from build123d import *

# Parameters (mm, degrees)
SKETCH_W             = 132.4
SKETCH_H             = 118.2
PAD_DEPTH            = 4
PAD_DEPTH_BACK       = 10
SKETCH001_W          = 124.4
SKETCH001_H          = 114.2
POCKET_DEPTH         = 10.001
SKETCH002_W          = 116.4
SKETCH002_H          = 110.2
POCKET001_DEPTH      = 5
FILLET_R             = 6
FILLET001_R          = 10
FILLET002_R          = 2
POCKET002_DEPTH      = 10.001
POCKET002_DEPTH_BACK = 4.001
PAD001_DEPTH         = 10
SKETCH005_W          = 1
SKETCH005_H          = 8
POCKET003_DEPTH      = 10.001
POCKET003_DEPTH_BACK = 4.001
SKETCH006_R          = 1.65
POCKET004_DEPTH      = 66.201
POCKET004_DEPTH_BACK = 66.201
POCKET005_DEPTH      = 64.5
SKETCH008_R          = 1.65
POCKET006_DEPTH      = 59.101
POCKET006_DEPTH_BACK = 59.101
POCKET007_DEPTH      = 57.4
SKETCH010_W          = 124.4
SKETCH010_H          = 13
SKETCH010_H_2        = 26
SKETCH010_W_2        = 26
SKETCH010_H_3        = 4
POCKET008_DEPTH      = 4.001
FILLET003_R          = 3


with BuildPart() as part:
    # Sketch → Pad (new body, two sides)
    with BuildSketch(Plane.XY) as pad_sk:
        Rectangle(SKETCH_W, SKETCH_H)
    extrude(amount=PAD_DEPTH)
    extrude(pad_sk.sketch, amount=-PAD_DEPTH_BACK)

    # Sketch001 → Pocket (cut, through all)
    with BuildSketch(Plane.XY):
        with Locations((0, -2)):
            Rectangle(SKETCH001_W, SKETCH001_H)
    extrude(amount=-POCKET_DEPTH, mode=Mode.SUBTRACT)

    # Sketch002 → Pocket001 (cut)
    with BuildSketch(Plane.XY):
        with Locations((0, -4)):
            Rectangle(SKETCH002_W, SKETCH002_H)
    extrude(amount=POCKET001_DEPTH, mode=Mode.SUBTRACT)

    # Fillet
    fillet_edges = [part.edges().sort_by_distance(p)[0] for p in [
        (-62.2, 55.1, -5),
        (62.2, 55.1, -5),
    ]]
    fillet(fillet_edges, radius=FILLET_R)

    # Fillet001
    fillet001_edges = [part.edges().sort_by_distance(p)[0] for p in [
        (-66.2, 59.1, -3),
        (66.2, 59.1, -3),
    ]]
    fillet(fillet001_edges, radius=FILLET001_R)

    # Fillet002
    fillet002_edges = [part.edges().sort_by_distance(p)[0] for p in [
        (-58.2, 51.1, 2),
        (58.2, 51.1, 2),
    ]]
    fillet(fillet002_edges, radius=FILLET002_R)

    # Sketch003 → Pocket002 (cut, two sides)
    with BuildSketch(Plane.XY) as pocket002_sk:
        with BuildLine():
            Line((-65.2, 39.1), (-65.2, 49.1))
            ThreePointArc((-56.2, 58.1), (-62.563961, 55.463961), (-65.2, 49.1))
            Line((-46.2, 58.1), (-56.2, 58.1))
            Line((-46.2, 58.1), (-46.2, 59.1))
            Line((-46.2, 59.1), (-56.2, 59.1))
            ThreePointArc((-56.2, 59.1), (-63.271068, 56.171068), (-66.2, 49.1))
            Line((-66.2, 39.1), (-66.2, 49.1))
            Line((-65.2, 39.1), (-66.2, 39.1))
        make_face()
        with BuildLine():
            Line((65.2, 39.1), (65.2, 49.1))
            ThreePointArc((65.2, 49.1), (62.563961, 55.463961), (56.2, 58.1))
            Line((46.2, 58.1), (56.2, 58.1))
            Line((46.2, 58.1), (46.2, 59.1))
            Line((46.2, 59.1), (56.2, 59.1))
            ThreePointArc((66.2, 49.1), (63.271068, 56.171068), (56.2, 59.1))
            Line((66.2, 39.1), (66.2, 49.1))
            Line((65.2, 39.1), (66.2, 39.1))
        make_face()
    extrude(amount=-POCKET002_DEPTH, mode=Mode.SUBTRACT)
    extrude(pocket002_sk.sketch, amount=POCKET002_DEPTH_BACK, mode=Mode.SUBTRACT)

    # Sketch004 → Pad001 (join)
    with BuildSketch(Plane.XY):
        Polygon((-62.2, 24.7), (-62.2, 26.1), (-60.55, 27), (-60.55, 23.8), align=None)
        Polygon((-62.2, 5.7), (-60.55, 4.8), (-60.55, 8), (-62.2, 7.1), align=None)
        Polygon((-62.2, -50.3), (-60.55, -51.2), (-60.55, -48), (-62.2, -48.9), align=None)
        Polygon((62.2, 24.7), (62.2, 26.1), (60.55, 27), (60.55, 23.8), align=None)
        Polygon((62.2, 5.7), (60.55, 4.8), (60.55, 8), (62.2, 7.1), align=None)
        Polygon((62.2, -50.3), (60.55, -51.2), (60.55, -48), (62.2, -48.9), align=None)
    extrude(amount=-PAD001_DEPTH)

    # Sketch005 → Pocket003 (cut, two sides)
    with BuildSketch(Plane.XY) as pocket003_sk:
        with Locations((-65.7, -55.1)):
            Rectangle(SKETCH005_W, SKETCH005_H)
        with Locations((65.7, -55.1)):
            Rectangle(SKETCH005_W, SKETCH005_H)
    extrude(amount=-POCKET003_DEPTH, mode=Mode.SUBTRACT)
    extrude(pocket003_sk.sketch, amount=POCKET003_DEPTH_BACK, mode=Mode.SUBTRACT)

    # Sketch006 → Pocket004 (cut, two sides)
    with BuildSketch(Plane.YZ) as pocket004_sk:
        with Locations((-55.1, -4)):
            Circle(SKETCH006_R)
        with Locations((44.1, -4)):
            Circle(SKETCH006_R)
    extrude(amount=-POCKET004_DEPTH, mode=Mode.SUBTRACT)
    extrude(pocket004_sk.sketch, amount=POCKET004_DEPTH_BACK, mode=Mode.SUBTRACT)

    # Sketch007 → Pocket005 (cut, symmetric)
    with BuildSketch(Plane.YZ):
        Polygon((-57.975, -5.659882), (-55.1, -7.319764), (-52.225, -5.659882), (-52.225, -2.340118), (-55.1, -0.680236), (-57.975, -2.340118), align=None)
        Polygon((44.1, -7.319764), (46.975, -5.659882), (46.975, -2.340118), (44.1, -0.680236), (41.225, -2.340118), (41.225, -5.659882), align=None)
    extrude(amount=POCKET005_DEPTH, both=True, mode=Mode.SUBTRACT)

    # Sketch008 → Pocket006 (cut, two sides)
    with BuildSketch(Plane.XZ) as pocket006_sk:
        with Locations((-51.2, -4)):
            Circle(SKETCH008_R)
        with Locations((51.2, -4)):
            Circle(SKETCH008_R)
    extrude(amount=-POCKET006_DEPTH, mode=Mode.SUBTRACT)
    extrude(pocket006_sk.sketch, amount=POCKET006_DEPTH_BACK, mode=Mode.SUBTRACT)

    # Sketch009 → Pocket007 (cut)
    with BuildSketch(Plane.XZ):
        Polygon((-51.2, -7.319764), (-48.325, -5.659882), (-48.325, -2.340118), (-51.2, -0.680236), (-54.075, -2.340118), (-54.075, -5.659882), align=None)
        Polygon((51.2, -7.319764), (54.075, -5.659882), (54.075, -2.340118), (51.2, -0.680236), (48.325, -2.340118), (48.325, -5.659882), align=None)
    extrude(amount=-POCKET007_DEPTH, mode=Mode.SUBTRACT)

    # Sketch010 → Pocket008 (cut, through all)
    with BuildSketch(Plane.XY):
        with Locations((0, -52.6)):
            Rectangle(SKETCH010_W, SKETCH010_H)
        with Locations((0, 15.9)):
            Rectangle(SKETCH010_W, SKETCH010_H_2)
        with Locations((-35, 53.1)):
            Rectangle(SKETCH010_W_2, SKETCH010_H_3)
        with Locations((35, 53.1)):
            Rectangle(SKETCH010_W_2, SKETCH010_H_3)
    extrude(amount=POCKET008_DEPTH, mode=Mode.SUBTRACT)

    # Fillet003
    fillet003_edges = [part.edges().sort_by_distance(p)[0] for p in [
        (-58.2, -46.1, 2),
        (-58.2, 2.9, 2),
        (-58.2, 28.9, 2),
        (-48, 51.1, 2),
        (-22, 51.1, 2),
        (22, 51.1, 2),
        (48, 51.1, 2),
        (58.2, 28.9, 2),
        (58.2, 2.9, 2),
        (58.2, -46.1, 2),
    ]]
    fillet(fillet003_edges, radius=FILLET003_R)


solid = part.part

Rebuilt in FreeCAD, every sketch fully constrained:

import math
import FreeCAD as App
import Part
import Sketcher

V = App.Vector
Q = App.Units.Quantity


def edges_at(feature, points):
    """Names of the edges that pass closest to the given points."""
    edges = feature.Shape.Edges
    near = lambda p: min(range(len(edges)), key=lambda i: edges[i].distToShape(Part.Vertex(*p))[0])
    return sorted({f"Edge{near(p) + 1}" for p in points})

doc = App.newDocument("Part")
body = doc.addObject("PartDesign::Body", "Body")

# Sketch on XY plane
sketch1 = body.newObject("Sketcher::SketchObject", "Sketch")
sketch1.AttachmentSupport = (doc.getObject("XY_Plane"), [""])
sketch1.MapMode = "FlatFace"
sketch1.addGeometry(Part.LineSegment(V(-66, 59, 0), V(-66, -59, 0)), False)
sketch1.addGeometry(Part.LineSegment(V(-66, -59, 0), V(66, -59, 0)), False)
sketch1.addGeometry(Part.LineSegment(V(66, -59, 0), V(66, 59, 0)), False)
sketch1.addGeometry(Part.LineSegment(V(66, 59, 0), V(-66, 59, 0)), False)
sketch1.addConstraint(Sketcher.Constraint("Coincident", 0, 2, 1, 1))
sketch1.addConstraint(Sketcher.Constraint("Coincident", 1, 2, 2, 1))
sketch1.addConstraint(Sketcher.Constraint("Coincident", 2, 2, 3, 1))
sketch1.addConstraint(Sketcher.Constraint("Coincident", 3, 2, 0, 1))
sketch1.addConstraint(Sketcher.Constraint("Vertical", 0))
sketch1.addConstraint(Sketcher.Constraint("Horizontal", 1))
sketch1.addConstraint(Sketcher.Constraint("Vertical", 2))
sketch1.addConstraint(Sketcher.Constraint("Horizontal", 3))
sketch1.addConstraint(Sketcher.Constraint("Symmetric", 0, 2, 2, 2, -1, 1))
sketch1.addConstraint(Sketcher.Constraint("DistanceX", 1, 1, 1, 2, 132.4))
sketch1.addConstraint(Sketcher.Constraint("DistanceY", 0, 2, 0, 1, 118.2))
pad1 = body.newObject("PartDesign::Pad", "Pad")
pad1.Profile = sketch1
pad1.Type = "TwoLengths"
pad1.Length = 4
pad1.Length2 = 10

# Sketch on XY plane
sketch2 = body.newObject("Sketcher::SketchObject", "Sketch001")
sketch2.AttachmentSupport = (doc.getObject("XY_Plane"), [""])
sketch2.MapMode = "FlatFace"
sketch2.addGeometry(Part.LineSegment(V(-62, 55, 0), V(-62, -59, 0)), False)
sketch2.addGeometry(Part.LineSegment(V(-62, -59, 0), V(62, -59, 0)), False)
sketch2.addGeometry(Part.LineSegment(V(62, -59, 0), V(62, 55, 0)), False)
sketch2.addGeometry(Part.LineSegment(V(62, 55, 0), V(-62, 55, 0)), False)
sketch2.addConstraint(Sketcher.Constraint("Coincident", 0, 2, 1, 1))
sketch2.addConstraint(Sketcher.Constraint("Coincident", 1, 2, 2, 1))
sketch2.addConstraint(Sketcher.Constraint("Coincident", 2, 2, 3, 1))
sketch2.addConstraint(Sketcher.Constraint("Coincident", 3, 2, 0, 1))
sketch2.addConstraint(Sketcher.Constraint("Vertical", 0))
sketch2.addConstraint(Sketcher.Constraint("Horizontal", 1))
sketch2.addConstraint(Sketcher.Constraint("Vertical", 2))
sketch2.addConstraint(Sketcher.Constraint("Horizontal", 3))
sketch2.addConstraint(Sketcher.Constraint("DistanceX", 1, 1, 1, 2, 124.4))
sketch2.addConstraint(Sketcher.Constraint("DistanceY", 0, 2, 0, 1, 114.2))
sketch2.addConstraint(Sketcher.Constraint("DistanceX", 0, 2, -1, 1, 62.2))
sketch2.addConstraint(Sketcher.Constraint("DistanceY", 0, 2, -1, 1, 59.1))
pocket1 = body.newObject("PartDesign::Pocket", "Pocket")
pocket1.Profile = sketch2
pocket1.Type = "ThroughAll"

# Sketch on XY plane
sketch3 = body.newObject("Sketcher::SketchObject", "Sketch002")
sketch3.AttachmentSupport = (doc.getObject("XY_Plane"), [""])
sketch3.MapMode = "FlatFace"
sketch3.addGeometry(Part.LineSegment(V(-58, 51, 0), V(-58, -59, 0)), False)
sketch3.addGeometry(Part.LineSegment(V(-58, -59, 0), V(58, -59, 0)), False)
sketch3.addGeometry(Part.LineSegment(V(58, -59, 0), V(58, 51, 0)), False)
sketch3.addGeometry(Part.LineSegment(V(58, 51, 0), V(-58, 51, 0)), False)
sketch3.addConstraint(Sketcher.Constraint("Coincident", 0, 2, 1, 1))
sketch3.addConstraint(Sketcher.Constraint("Coincident", 1, 2, 2, 1))
sketch3.addConstraint(Sketcher.Constraint("Coincident", 2, 2, 3, 1))
sketch3.addConstraint(Sketcher.Constraint("Coincident", 3, 2, 0, 1))
sketch3.addConstraint(Sketcher.Constraint("Vertical", 0))
sketch3.addConstraint(Sketcher.Constraint("Horizontal", 1))
sketch3.addConstraint(Sketcher.Constraint("Vertical", 2))
sketch3.addConstraint(Sketcher.Constraint("Horizontal", 3))
sketch3.addConstraint(Sketcher.Constraint("DistanceX", 1, 1, 1, 2, 116.4))
sketch3.addConstraint(Sketcher.Constraint("DistanceY", 0, 2, 0, 1, 110.2))
sketch3.addConstraint(Sketcher.Constraint("DistanceX", 0, 2, -1, 1, 58.2))
sketch3.addConstraint(Sketcher.Constraint("DistanceY", 0, 2, -1, 1, 59.1))
pocket2 = body.newObject("PartDesign::Pocket", "Pocket001")
pocket2.Profile = sketch3
pocket2.Length = 5
pocket2.Reversed = True
doc.recompute()

fillet = body.newObject("PartDesign::Fillet", "Fillet")
fillet.Base = (pocket2, edges_at(pocket2, [(-62.2, 55.1, -5), (62.2, 55.1, -5)]))
fillet.Radius = 6
doc.recompute()

fillet2 = body.newObject("PartDesign::Fillet", "Fillet001")
fillet2.Base = (fillet, edges_at(fillet, [(-66.2, 59.1, -3), (66.2, 59.1, -3)]))
fillet2.Radius = 10
doc.recompute()

fillet3 = body.newObject("PartDesign::Fillet", "Fillet002")
fillet3.Base = (fillet2, edges_at(fillet2, [(-58.2, 51.1, 2), (58.2, 51.1, 2)]))
fillet3.Radius = 2

# Sketch on XY plane
sketch4 = body.newObject("Sketcher::SketchObject", "Sketch003")
sketch4.AttachmentSupport = (doc.getObject("XY_Plane"), [""])
sketch4.MapMode = "FlatFace"
sketch4.addGeometry(Part.LineSegment(V(-65.2, 39.1, 0), V(-65.2, 49.1, 0)), False)
sketch4.addGeometry(Part.ArcOfCircle(Part.Circle(V(-56.2, 49.1, 0), V(0, 0, 1), 9), math.radians(90), math.radians(180)), False)
sketch4.addGeometry(Part.LineSegment(V(-56.2, 58.1, 0), V(-46.2, 58.1, 0)), False)
sketch4.addGeometry(Part.LineSegment(V(-46.2, 58.1, 0), V(-46.2, 59.1, 0)), False)
sketch4.addGeometry(Part.LineSegment(V(-46.2, 59.1, 0), V(-56.2, 59.1, 0)), False)
sketch4.addGeometry(Part.ArcOfCircle(Part.Circle(V(-56.2, 49.1, 0), V(0, 0, 1), 10), math.radians(90), math.radians(180)), False)
sketch4.addGeometry(Part.LineSegment(V(-66.2, 49.1, 0), V(-66.2, 39.1, 0)), False)
sketch4.addGeometry(Part.LineSegment(V(-66.2, 39.1, 0), V(-65.2, 39.1, 0)), False)
sketch4.addGeometry(Part.LineSegment(V(65.2, 49.1, 0), V(65.2, 39.1, 0)), False)
sketch4.addGeometry(Part.LineSegment(V(65.2, 39.1, 0), V(66.2, 39.1, 0)), False)
sketch4.addGeometry(Part.LineSegment(V(66.2, 39.1, 0), V(66.2, 49.1, 0)), False)
sketch4.addGeometry(Part.ArcOfCircle(Part.Circle(V(56.2, 49.1, 0), V(0, 0, 1), 10), math.radians(0), math.radians(90)), False)
sketch4.addGeometry(Part.LineSegment(V(56.2, 59.1, 0), V(46.2, 59.1, 0)), False)
sketch4.addGeometry(Part.LineSegment(V(46.2, 59.1, 0), V(46.2, 58.1, 0)), False)
sketch4.addGeometry(Part.LineSegment(V(46.2, 58.1, 0), V(56.2, 58.1, 0)), False)
sketch4.addGeometry(Part.ArcOfCircle(Part.Circle(V(56.2, 49.1, 0), V(0, 0, 1), 9), math.radians(0), math.radians(90)), False)
sketch4.addConstraint(Sketcher.Constraint("Tangent", 0, 2, 1, 2))
sketch4.addConstraint(Sketcher.Constraint("Tangent", 1, 1, 2, 1))
sketch4.addConstraint(Sketcher.Constraint("Coincident", 2, 2, 3, 1))
sketch4.addConstraint(Sketcher.Constraint("Coincident", 3, 2, 4, 1))
sketch4.addConstraint(Sketcher.Constraint("Tangent", 4, 2, 5, 1))
sketch4.addConstraint(Sketcher.Constraint("Tangent", 5, 2, 6, 1))
sketch4.addConstraint(Sketcher.Constraint("Coincident", 6, 2, 7, 1))
sketch4.addConstraint(Sketcher.Constraint("Coincident", 7, 2, 0, 1))
sketch4.addConstraint(Sketcher.Constraint("Coincident", 8, 2, 9, 1))
sketch4.addConstraint(Sketcher.Constraint("Coincident", 9, 2, 10, 1))
sketch4.addConstraint(Sketcher.Constraint("Tangent", 10, 2, 11, 1))
sketch4.addConstraint(Sketcher.Constraint("Tangent", 11, 2, 12, 1))
sketch4.addConstraint(Sketcher.Constraint("Coincident", 12, 2, 13, 1))
sketch4.addConstraint(Sketcher.Constraint("Coincident", 13, 2, 14, 1))
sketch4.addConstraint(Sketcher.Constraint("Tangent", 14, 2, 15, 2))
sketch4.addConstraint(Sketcher.Constraint("Tangent", 15, 1, 8, 1))
sketch4.addConstraint(Sketcher.Constraint("Vertical", 0))
sketch4.addConstraint(Sketcher.Constraint("Horizontal", 2))
sketch4.addConstraint(Sketcher.Constraint("Vertical", 3))
sketch4.addConstraint(Sketcher.Constraint("Horizontal", 4))
sketch4.addConstraint(Sketcher.Constraint("Vertical", 6))
sketch4.addConstraint(Sketcher.Constraint("Horizontal", 7))
sketch4.addConstraint(Sketcher.Constraint("Vertical", 8))
sketch4.addConstraint(Sketcher.Constraint("Horizontal", 9))
sketch4.addConstraint(Sketcher.Constraint("Vertical", 10))
sketch4.addConstraint(Sketcher.Constraint("Horizontal", 12))
sketch4.addConstraint(Sketcher.Constraint("Vertical", 13))
sketch4.addConstraint(Sketcher.Constraint("Horizontal", 14))
sketch4.addConstraint(Sketcher.Constraint("Coincident", 5, 3, 1, 3))
sketch4.addConstraint(Sketcher.Constraint("Coincident", 15, 3, 11, 3))
sketch4.addConstraint(Sketcher.Constraint("Equal", 5, 11))
sketch4.addConstraint(Sketcher.Constraint("Equal", 1, 15))
sketch4.addConstraint(Sketcher.Constraint("Symmetric", 1, 3, 11, 3, -2))
sketch4.addConstraint(Sketcher.Constraint("Horizontal", 7, 2, 8, 2))
sketch4.addConstraint(Sketcher.Constraint("Equal", 4, 12))
sketch4.addConstraint(Sketcher.Constraint("Equal", 14, 0))
sketch4.addConstraint(Sketcher.Constraint("Radius", 1, 9.0))
sketch4.addConstraint(Sketcher.Constraint("Radius", 5, 9.999999))
sketch4.addConstraint(Sketcher.Constraint("DistanceX", 2, 1, 2, 2, 10.0))
sketch4.addConstraint(Sketcher.Constraint("DistanceX", 1, 3, -1, 1, 56.2))
sketch4.addConstraint(Sketcher.Constraint("DistanceY", -1, 1, 1, 3, 49.1))
pocket3 = body.newObject("PartDesign::Pocket", "Pocket002")
pocket3.Profile = sketch4
pocket3.Type = "ThroughAll"
pocket3.Midplane = True

# Sketch on XY plane
sketch5 = body.newObject("Sketcher::SketchObject", "Sketch004")
sketch5.AttachmentSupport = (doc.getObject("XY_Plane"), [""])
sketch5.MapMode = "FlatFace"
sketch5.addGeometry(Part.LineSegment(V(-62.2, 26.1, 0), V(-62.2, 24.7, 0)), False)
sketch5.addGeometry(Part.LineSegment(V(-62.2, 24.7, 0), V(-60.5, 23.8, 0)), False)
sketch5.addGeometry(Part.LineSegment(V(-60.5, 23.8, 0), V(-60.5, 27, 0)), False)
sketch5.addGeometry(Part.LineSegment(V(-60.5, 27, 0), V(-62.2, 26.1, 0)), False)
sketch5.addGeometry(Part.LineSegment(V(-62.2, 5.7, 0), V(-60.5, 4.8, 0)), False)
sketch5.addGeometry(Part.LineSegment(V(-60.5, 4.8, 0), V(-60.5, 8, 0)), False)
sketch5.addGeometry(Part.LineSegment(V(-60.5, 8, 0), V(-62.2, 7.1, 0)), False)
sketch5.addGeometry(Part.LineSegment(V(-62.2, 7.1, 0), V(-62.2, 5.7, 0)), False)
sketch5.addGeometry(Part.LineSegment(V(-62.2, -50.3, 0), V(-60.5, -51.2, 0)), False)
sketch5.addGeometry(Part.LineSegment(V(-60.5, -51.2, 0), V(-60.5, -48, 0)), False)
sketch5.addGeometry(Part.LineSegment(V(-60.5, -48, 0), V(-62.2, -48.9, 0)), False)
sketch5.addGeometry(Part.LineSegment(V(-62.2, -48.9, 0), V(-62.2, -50.3, 0)), False)
sketch5.addGeometry(Part.LineSegment(V(62.2, 24.7, 0), V(62.2, 26.1, 0)), False)
sketch5.addGeometry(Part.LineSegment(V(62.2, 26.1, 0), V(60.5, 27, 0)), False)
sketch5.addGeometry(Part.LineSegment(V(60.5, 27, 0), V(60.5, 23.8, 0)), False)
sketch5.addGeometry(Part.LineSegment(V(60.5, 23.8, 0), V(62.2, 24.7, 0)), False)
sketch5.addGeometry(Part.LineSegment(V(60.5, 4.8, 0), V(62.2, 5.7, 0)), False)
sketch5.addGeometry(Part.LineSegment(V(62.2, 5.7, 0), V(62.2, 7.1, 0)), False)
sketch5.addGeometry(Part.LineSegment(V(62.2, 7.1, 0), V(60.5, 8, 0)), False)
sketch5.addGeometry(Part.LineSegment(V(60.5, 8, 0), V(60.5, 4.8, 0)), False)
sketch5.addGeometry(Part.LineSegment(V(60.5, -51.2, 0), V(62.2, -50.3, 0)), False)
sketch5.addGeometry(Part.LineSegment(V(62.2, -50.3, 0), V(62.2, -48.9, 0)), False)
sketch5.addGeometry(Part.LineSegment(V(62.2, -48.9, 0), V(60.5, -48, 0)), False)
sketch5.addGeometry(Part.LineSegment(V(60.5, -48, 0), V(60.5, -51.2, 0)), False)
sketch5.addConstraint(Sketcher.Constraint("Coincident", 0, 2, 1, 1))
sketch5.addConstraint(Sketcher.Constraint("Coincident", 1, 2, 2, 1))
sketch5.addConstraint(Sketcher.Constraint("Coincident", 2, 2, 3, 1))
sketch5.addConstraint(Sketcher.Constraint("Coincident", 3, 2, 0, 1))
sketch5.addConstraint(Sketcher.Constraint("Coincident", 4, 2, 5, 1))
sketch5.addConstraint(Sketcher.Constraint("Coincident", 5, 2, 6, 1))
sketch5.addConstraint(Sketcher.Constraint("Coincident", 6, 2, 7, 1))
sketch5.addConstraint(Sketcher.Constraint("Coincident", 7, 2, 4, 1))
sketch5.addConstraint(Sketcher.Constraint("Coincident", 8, 2, 9, 1))
sketch5.addConstraint(Sketcher.Constraint("Coincident", 9, 2, 10, 1))
sketch5.addConstraint(Sketcher.Constraint("Coincident", 10, 2, 11, 1))
sketch5.addConstraint(Sketcher.Constraint("Coincident", 11, 2, 8, 1))
sketch5.addConstraint(Sketcher.Constraint("Coincident", 12, 2, 13, 1))
sketch5.addConstraint(Sketcher.Constraint("Coincident", 13, 2, 14, 1))
sketch5.addConstraint(Sketcher.Constraint("Coincident", 14, 2, 15, 1))
sketch5.addConstraint(Sketcher.Constraint("Coincident", 15, 2, 12, 1))
sketch5.addConstraint(Sketcher.Constraint("Coincident", 16, 2, 17, 1))
sketch5.addConstraint(Sketcher.Constraint("Coincident", 17, 2, 18, 1))
sketch5.addConstraint(Sketcher.Constraint("Coincident", 18, 2, 19, 1))
sketch5.addConstraint(Sketcher.Constraint("Coincident", 19, 2, 16, 1))
sketch5.addConstraint(Sketcher.Constraint("Coincident", 20, 2, 21, 1))
sketch5.addConstraint(Sketcher.Constraint("Coincident", 21, 2, 22, 1))
sketch5.addConstraint(Sketcher.Constraint("Coincident", 22, 2, 23, 1))
sketch5.addConstraint(Sketcher.Constraint("Coincident", 23, 2, 20, 1))
sketch5.addConstraint(Sketcher.Constraint("Vertical", 0))
sketch5.addConstraint(Sketcher.Constraint("Vertical", 2))
sketch5.addConstraint(Sketcher.Constraint("Vertical", 5))
sketch5.addConstraint(Sketcher.Constraint("Vertical", 7))
sketch5.addConstraint(Sketcher.Constraint("Vertical", 9))
sketch5.addConstraint(Sketcher.Constraint("Vertical", 11))
sketch5.addConstraint(Sketcher.Constraint("Vertical", 12))
sketch5.addConstraint(Sketcher.Constraint("Vertical", 14))
sketch5.addConstraint(Sketcher.Constraint("Vertical", 17))
sketch5.addConstraint(Sketcher.Constraint("Vertical", 19))
sketch5.addConstraint(Sketcher.Constraint("Vertical", 21))
sketch5.addConstraint(Sketcher.Constraint("Vertical", 23))
sketch5.addConstraint(Sketcher.Constraint("Symmetric", 3, 2, 12, 2, -2))
sketch5.addConstraint(Sketcher.Constraint("Symmetric", 2, 2, 13, 2, -2))
sketch5.addConstraint(Sketcher.Constraint("Symmetric", 7, 2, 16, 2, -2))
sketch5.addConstraint(Sketcher.Constraint("Symmetric", 5, 2, 18, 2, -2))
sketch5.addConstraint(Sketcher.Constraint("Symmetric", 11, 2, 20, 2, -2))
sketch5.addConstraint(Sketcher.Constraint("Symmetric", 9, 2, 22, 2, -2))
sketch5.addConstraint(Sketcher.Constraint("Parallel", 1, 4))
sketch5.addConstraint(Sketcher.Constraint("Parallel", 3, 6))
sketch5.addConstraint(Sketcher.Constraint("Parallel", 4, 8))
sketch5.addConstraint(Sketcher.Constraint("Parallel", 6, 10))
sketch5.addConstraint(Sketcher.Constraint("Parallel", 8, 13))
sketch5.addConstraint(Sketcher.Constraint("Parallel", 10, 15))
sketch5.addConstraint(Sketcher.Constraint("Parallel", 15, 16))
sketch5.addConstraint(Sketcher.Constraint("Parallel", 13, 18))
sketch5.addConstraint(Sketcher.Constraint("Parallel", 16, 20))
sketch5.addConstraint(Sketcher.Constraint("Parallel", 18, 22))
sketch5.addConstraint(Sketcher.Constraint("Horizontal", 1, 2, 14, 2))
sketch5.addConstraint(Sketcher.Constraint("Vertical", 2, 2, 4, 2))
sketch5.addConstraint(Sketcher.Constraint("Vertical", 3, 2, 6, 2))
sketch5.addConstraint(Sketcher.Constraint("Vertical", 5, 2, 8, 2))
sketch5.addConstraint(Sketcher.Constraint("Vertical", 7, 2, 10, 2))
sketch5.addConstraint(Sketcher.Constraint("Equal", 2, 5))
sketch5.addConstraint(Sketcher.Constraint("Equal", 5, 9))
sketch5.addConstraint(Sketcher.Constraint("DistanceY", 0, 2, 0, 1, 1.4))
sketch5.addConstraint(Sketcher.Constraint("DistanceY", 2, 1, 2, 2, 3.2))
sketch5.addConstraint(Sketcher.Constraint("DistanceY", -1, 1, 2, 2, 27.0))
sketch5.addConstraint(Sketcher.Constraint("DistanceY", -1, 1, 5, 2, 8.0))
sketch5.addConstraint(Sketcher.Constraint("DistanceY", 9, 2, -1, 1, 48.0))
sketch5.addConstraint(Sketcher.Constraint("DistanceX", 0, 2, -1, 1, 62.2))
sketch5.addConstraint(Sketcher.Constraint("DistanceX", 2, 2, 13, 2, 121.1))
pad2 = body.newObject("PartDesign::Pad", "Pad001")
pad2.Profile = sketch5
pad2.Length = 10
pad2.Reversed = True

# Sketch on XY plane
sketch6 = body.newObject("Sketcher::SketchObject", "Sketch005")
sketch6.AttachmentSupport = (doc.getObject("XY_Plane"), [""])
sketch6.MapMode = "FlatFace"
sketch6.addGeometry(Part.LineSegment(V(-66.2, -51.1, 0), V(-66.2, -59.1, 0)), False)
sketch6.addGeometry(Part.LineSegment(V(-66.2, -59.1, 0), V(-65.2, -59.1, 0)), False)
sketch6.addGeometry(Part.LineSegment(V(-65.2, -59.1, 0), V(-65.2, -51.1, 0)), False)
sketch6.addGeometry(Part.LineSegment(V(-65.2, -51.1, 0), V(-66.2, -51.1, 0)), False)
sketch6.addGeometry(Part.LineSegment(V(65.2, -51.1, 0), V(65.2, -59.1, 0)), False)
sketch6.addGeometry(Part.LineSegment(V(65.2, -59.1, 0), V(66.2, -59.1, 0)), False)
sketch6.addGeometry(Part.LineSegment(V(66.2, -59.1, 0), V(66.2, -51.1, 0)), False)
sketch6.addGeometry(Part.LineSegment(V(66.2, -51.1, 0), V(65.2, -51.1, 0)), False)
sketch6.addConstraint(Sketcher.Constraint("Coincident", 0, 2, 1, 1))
sketch6.addConstraint(Sketcher.Constraint("Coincident", 1, 2, 2, 1))
sketch6.addConstraint(Sketcher.Constraint("Coincident", 2, 2, 3, 1))
sketch6.addConstraint(Sketcher.Constraint("Coincident", 3, 2, 0, 1))
sketch6.addConstraint(Sketcher.Constraint("Coincident", 4, 2, 5, 1))
sketch6.addConstraint(Sketcher.Constraint("Coincident", 5, 2, 6, 1))
sketch6.addConstraint(Sketcher.Constraint("Coincident", 6, 2, 7, 1))
sketch6.addConstraint(Sketcher.Constraint("Coincident", 7, 2, 4, 1))
sketch6.addConstraint(Sketcher.Constraint("Vertical", 0))
sketch6.addConstraint(Sketcher.Constraint("Horizontal", 1))
sketch6.addConstraint(Sketcher.Constraint("Vertical", 2))
sketch6.addConstraint(Sketcher.Constraint("Horizontal", 3))
sketch6.addConstraint(Sketcher.Constraint("Vertical", 4))
sketch6.addConstraint(Sketcher.Constraint("Horizontal", 5))
sketch6.addConstraint(Sketcher.Constraint("Vertical", 6))
sketch6.addConstraint(Sketcher.Constraint("Horizontal", 7))
sketch6.addConstraint(Sketcher.Constraint("Symmetric", 1, 2, 4, 2, -2))
sketch6.addConstraint(Sketcher.Constraint("Symmetric", 3, 2, 6, 2, -2))
sketch6.addConstraint(Sketcher.Constraint("DistanceX", 1, 1, 1, 2, 1.0))
sketch6.addConstraint(Sketcher.Constraint("DistanceY", 0, 2, 0, 1, 8.0))
sketch6.addConstraint(Sketcher.Constraint("DistanceX", 0, 2, -1, 1, 66.2))
sketch6.addConstraint(Sketcher.Constraint("DistanceY", 0, 2, -1, 1, 59.1))
pocket4 = body.newObject("PartDesign::Pocket", "Pocket003")
pocket4.Profile = sketch6
pocket4.Type = "ThroughAll"
pocket4.Midplane = True

# Sketch on YZ plane
sketch7 = body.newObject("Sketcher::SketchObject", "Sketch006")
sketch7.AttachmentSupport = (doc.getObject("YZ_Plane"), [""])
sketch7.MapMode = "FlatFace"
sketch7.addGeometry(Part.Circle(V(-55.1, -4, 0), V(0, 0, 1), 1.6), False)
sketch7.addGeometry(Part.Circle(V(44.1, -4, 0), V(0, 0, 1), 1.6), False)
sketch7.addConstraint(Sketcher.Constraint("Equal", 0, 1))
sketch7.addConstraint(Sketcher.Constraint("Horizontal", 0, 3, 1, 3))
sketch7.addConstraint(Sketcher.Constraint("Diameter", 0, 3.3))
sketch7.addConstraint(Sketcher.Constraint("DistanceY", 0, 3, -1, 1, 4.0))
sketch7.addConstraint(Sketcher.Constraint("DistanceX", 0, 3, -1, 1, 55.1))
sketch7.addConstraint(Sketcher.Constraint("DistanceX", -1, 1, 1, 3, 44.1))
pocket5 = body.newObject("PartDesign::Pocket", "Pocket004")
pocket5.Profile = sketch7
pocket5.Type = "ThroughAll"
pocket5.Midplane = True

# Sketch on YZ plane
sketch8 = body.newObject("Sketcher::SketchObject", "Sketch007")
sketch8.AttachmentSupport = (doc.getObject("YZ_Plane"), [""])
sketch8.MapMode = "FlatFace"
sketch8.addGeometry(Part.LineSegment(V(-58, -5.7, 0), V(-55.1, -7.3, 0)), False)
sketch8.addGeometry(Part.LineSegment(V(-55.1, -7.3, 0), V(-52.2, -5.7, 0)), False)
sketch8.addGeometry(Part.LineSegment(V(-52.2, -5.7, 0), V(-52.2, -2.3, 0)), False)
sketch8.addGeometry(Part.LineSegment(V(-52.2, -2.3, 0), V(-55.1, -0.7, 0)), False)
sketch8.addGeometry(Part.LineSegment(V(-55.1, -0.7, 0), V(-58, -2.3, 0)), False)
sketch8.addGeometry(Part.LineSegment(V(-58, -2.3, 0), V(-58, -5.7, 0)), False)
sketch8.addGeometry(Part.LineSegment(V(44.1, -7.3, 0), V(47, -5.7, 0)), False)
sketch8.addGeometry(Part.LineSegment(V(47, -5.7, 0), V(47, -2.3, 0)), False)
sketch8.addGeometry(Part.LineSegment(V(47, -2.3, 0), V(44.1, -0.7, 0)), False)
sketch8.addGeometry(Part.LineSegment(V(44.1, -0.7, 0), V(41.2, -2.3, 0)), False)
sketch8.addGeometry(Part.LineSegment(V(41.2, -2.3, 0), V(41.2, -5.7, 0)), False)
sketch8.addGeometry(Part.LineSegment(V(41.2, -5.7, 0), V(44.1, -7.3, 0)), False)
sketch8.addConstraint(Sketcher.Constraint("Coincident", 0, 2, 1, 1))
sketch8.addConstraint(Sketcher.Constraint("Coincident", 1, 2, 2, 1))
sketch8.addConstraint(Sketcher.Constraint("Coincident", 2, 2, 3, 1))
sketch8.addConstraint(Sketcher.Constraint("Coincident", 3, 2, 4, 1))
sketch8.addConstraint(Sketcher.Constraint("Coincident", 4, 2, 5, 1))
sketch8.addConstraint(Sketcher.Constraint("Coincident", 5, 2, 0, 1))
sketch8.addConstraint(Sketcher.Constraint("Coincident", 6, 2, 7, 1))
sketch8.addConstraint(Sketcher.Constraint("Coincident", 7, 2, 8, 1))
sketch8.addConstraint(Sketcher.Constraint("Coincident", 8, 2, 9, 1))
sketch8.addConstraint(Sketcher.Constraint("Coincident", 9, 2, 10, 1))
sketch8.addConstraint(Sketcher.Constraint("Coincident", 10, 2, 11, 1))
sketch8.addConstraint(Sketcher.Constraint("Coincident", 11, 2, 6, 1))
sketch8.addConstraint(Sketcher.Constraint("Vertical", 2))
sketch8.addConstraint(Sketcher.Constraint("Vertical", 5))
sketch8.addConstraint(Sketcher.Constraint("Vertical", 7))
sketch8.addConstraint(Sketcher.Constraint("Vertical", 10))
sketch8.addConstraint(Sketcher.Constraint("Parallel", 0, 3))
sketch8.addConstraint(Sketcher.Constraint("Parallel", 1, 4))
sketch8.addConstraint(Sketcher.Constraint("Parallel", 4, 6))
sketch8.addConstraint(Sketcher.Constraint("Parallel", 3, 8))
sketch8.addConstraint(Sketcher.Constraint("Parallel", 6, 9))
sketch8.addConstraint(Sketcher.Constraint("Parallel", 8, 11))
sketch8.addConstraint(Sketcher.Constraint("Horizontal", 2, 2, 4, 2))
sketch8.addConstraint(Sketcher.Constraint("Horizontal", 1, 2, 5, 2))
sketch8.addConstraint(Sketcher.Constraint("Horizontal", 5, 2, 6, 2))
sketch8.addConstraint(Sketcher.Constraint("Horizontal", 4, 2, 7, 2))
sketch8.addConstraint(Sketcher.Constraint("Horizontal", 3, 2, 8, 2))
sketch8.addConstraint(Sketcher.Constraint("Horizontal", 7, 2, 9, 2))
sketch8.addConstraint(Sketcher.Constraint("Horizontal", 6, 2, 10, 2))
sketch8.addConstraint(Sketcher.Constraint("Vertical", 0, 2, 3, 2))
sketch8.addConstraint(Sketcher.Constraint("Angle", 0, Q("-30 deg")))
sketch8.addConstraint(Sketcher.Constraint("DistanceX", 0, 2, -1, 1, 55.1))
sketch8.addConstraint(Sketcher.Constraint("DistanceX", -1, 1, 8, 2, 44.1))
sketch8.addConstraint(Sketcher.Constraint("DistanceX", 4, 2, 2, 2, 5.75))
sketch8.addConstraint(Sketcher.Constraint("DistanceY", 2, 1, 2, 2, 3.319764))
sketch8.addConstraint(Sketcher.Constraint("DistanceY", 1, 2, -1, 1, 5.659882))
pocket6 = body.newObject("PartDesign::Pocket", "Pocket005")
pocket6.Profile = sketch8
pocket6.Length = 129
pocket6.Midplane = True

# Sketch on XZ plane
sketch9 = body.newObject("Sketcher::SketchObject", "Sketch008")
sketch9.AttachmentSupport = (doc.getObject("XZ_Plane"), [""])
sketch9.MapMode = "FlatFace"
sketch9.addGeometry(Part.Circle(V(-51.2, -4, 0), V(0, 0, 1), 1.6), False)
sketch9.addGeometry(Part.Circle(V(51.2, -4, 0), V(0, 0, 1), 1.6), False)
sketch9.addConstraint(Sketcher.Constraint("Equal", 0, 1))
sketch9.addConstraint(Sketcher.Constraint("Symmetric", 0, 3, 1, 3, -2))
sketch9.addConstraint(Sketcher.Constraint("Diameter", 0, 3.3))
sketch9.addConstraint(Sketcher.Constraint("DistanceY", 0, 3, -1, 1, 4.0))
sketch9.addConstraint(Sketcher.Constraint("DistanceX", 0, 3, -1, 1, 51.2))
pocket7 = body.newObject("PartDesign::Pocket", "Pocket006")
pocket7.Profile = sketch9
pocket7.Type = "ThroughAll"
pocket7.Midplane = True

# Sketch on XZ plane
sketch10 = body.newObject("Sketcher::SketchObject", "Sketch009")
sketch10.AttachmentSupport = (doc.getObject("XZ_Plane"), [""])
sketch10.MapMode = "FlatFace"
sketch10.addGeometry(Part.LineSegment(V(-51.2, -7.3, 0), V(-48.3, -5.7, 0)), False)
sketch10.addGeometry(Part.LineSegment(V(-48.3, -5.7, 0), V(-48.3, -2.3, 0)), False)
sketch10.addGeometry(Part.LineSegment(V(-48.3, -2.3, 0), V(-51.2, -0.7, 0)), False)
sketch10.addGeometry(Part.LineSegment(V(-51.2, -0.7, 0), V(-54.1, -2.3, 0)), False)
sketch10.addGeometry(Part.LineSegment(V(-54.1, -2.3, 0), V(-54.1, -5.7, 0)), False)
sketch10.addGeometry(Part.LineSegment(V(-54.1, -5.7, 0), V(-51.2, -7.3, 0)), False)
sketch10.addGeometry(Part.LineSegment(V(51.2, -7.3, 0), V(54.1, -5.7, 0)), False)
sketch10.addGeometry(Part.LineSegment(V(54.1, -5.7, 0), V(54.1, -2.3, 0)), False)
sketch10.addGeometry(Part.LineSegment(V(54.1, -2.3, 0), V(51.2, -0.7, 0)), False)
sketch10.addGeometry(Part.LineSegment(V(51.2, -0.7, 0), V(48.3, -2.3, 0)), False)
sketch10.addGeometry(Part.LineSegment(V(48.3, -2.3, 0), V(48.3, -5.7, 0)), False)
sketch10.addGeometry(Part.LineSegment(V(48.3, -5.7, 0), V(51.2, -7.3, 0)), False)
sketch10.addConstraint(Sketcher.Constraint("Coincident", 0, 2, 1, 1))
sketch10.addConstraint(Sketcher.Constraint("Coincident", 1, 2, 2, 1))
sketch10.addConstraint(Sketcher.Constraint("Coincident", 2, 2, 3, 1))
sketch10.addConstraint(Sketcher.Constraint("Coincident", 3, 2, 4, 1))
sketch10.addConstraint(Sketcher.Constraint("Coincident", 4, 2, 5, 1))
sketch10.addConstraint(Sketcher.Constraint("Coincident", 5, 2, 0, 1))
sketch10.addConstraint(Sketcher.Constraint("Coincident", 6, 2, 7, 1))
sketch10.addConstraint(Sketcher.Constraint("Coincident", 7, 2, 8, 1))
sketch10.addConstraint(Sketcher.Constraint("Coincident", 8, 2, 9, 1))
sketch10.addConstraint(Sketcher.Constraint("Coincident", 9, 2, 10, 1))
sketch10.addConstraint(Sketcher.Constraint("Coincident", 10, 2, 11, 1))
sketch10.addConstraint(Sketcher.Constraint("Coincident", 11, 2, 6, 1))
sketch10.addConstraint(Sketcher.Constraint("Vertical", 1))
sketch10.addConstraint(Sketcher.Constraint("Vertical", 4))
sketch10.addConstraint(Sketcher.Constraint("Vertical", 7))
sketch10.addConstraint(Sketcher.Constraint("Vertical", 10))
sketch10.addConstraint(Sketcher.Constraint("Symmetric", 4, 2, 6, 2, -2))
sketch10.addConstraint(Sketcher.Constraint("Symmetric", 2, 2, 8, 2, -2))
sketch10.addConstraint(Sketcher.Constraint("Symmetric", 1, 2, 9, 2, -2))
sketch10.addConstraint(Sketcher.Constraint("Symmetric", 5, 2, 11, 2, -2))
sketch10.addConstraint(Sketcher.Constraint("Parallel", 0, 3))
sketch10.addConstraint(Sketcher.Constraint("Parallel", 2, 5))
sketch10.addConstraint(Sketcher.Constraint("Parallel", 3, 6))
sketch10.addConstraint(Sketcher.Constraint("Parallel", 5, 8))
sketch10.addConstraint(Sketcher.Constraint("Parallel", 8, 11))
sketch10.addConstraint(Sketcher.Constraint("Horizontal", 1, 2, 3, 2))
sketch10.addConstraint(Sketcher.Constraint("Horizontal", 0, 2, 4, 2))
sketch10.addConstraint(Sketcher.Constraint("Angle", 0, Q("30 deg")))
sketch10.addConstraint(Sketcher.Constraint("DistanceX", 2, 2, -1, 1, 51.2))
sketch10.addConstraint(Sketcher.Constraint("DistanceX", 3, 2, 1, 2, 5.75))
sketch10.addConstraint(Sketcher.Constraint("DistanceY", 1, 1, 1, 2, 3.319764))
sketch10.addConstraint(Sketcher.Constraint("DistanceY", 0, 2, -1, 1, 5.659882))
pocket8 = body.newObject("PartDesign::Pocket", "Pocket007")
pocket8.Profile = sketch10
pocket8.Length = 57.4

# Sketch on XY plane
sketch11 = body.newObject("Sketcher::SketchObject", "Sketch010")
sketch11.AttachmentSupport = (doc.getObject("XY_Plane"), [""])
sketch11.MapMode = "FlatFace"
sketch11.addGeometry(Part.LineSegment(V(-62.2, -46.1, 0), V(-62.2, -59.1, 0)), False)
sketch11.addGeometry(Part.LineSegment(V(-62.2, -59.1, 0), V(62.2, -59.1, 0)), False)
sketch11.addGeometry(Part.LineSegment(V(62.2, -59.1, 0), V(62.2, -46.1, 0)), False)
sketch11.addGeometry(Part.LineSegment(V(62.2, -46.1, 0), V(-62.2, -46.1, 0)), False)
sketch11.addGeometry(Part.LineSegment(V(-62.2, 28.9, 0), V(-62.2, 2.9, 0)), False)
sketch11.addGeometry(Part.LineSegment(V(-62.2, 2.9, 0), V(62.2, 2.9, 0)), False)
sketch11.addGeometry(Part.LineSegment(V(62.2, 2.9, 0), V(62.2, 28.9, 0)), False)
sketch11.addGeometry(Part.LineSegment(V(62.2, 28.9, 0), V(-62.2, 28.9, 0)), False)
sketch11.addGeometry(Part.LineSegment(V(-48, 55.1, 0), V(-48, 51.1, 0)), False)
sketch11.addGeometry(Part.LineSegment(V(-48, 51.1, 0), V(-22, 51.1, 0)), False)
sketch11.addGeometry(Part.LineSegment(V(-22, 51.1, 0), V(-22, 55.1, 0)), False)
sketch11.addGeometry(Part.LineSegment(V(-22, 55.1, 0), V(-48, 55.1, 0)), False)
sketch11.addGeometry(Part.LineSegment(V(22, 55.1, 0), V(22, 51.1, 0)), False)
sketch11.addGeometry(Part.LineSegment(V(22, 51.1, 0), V(48, 51.1, 0)), False)
sketch11.addGeometry(Part.LineSegment(V(48, 51.1, 0), V(48, 55.1, 0)), False)
sketch11.addGeometry(Part.LineSegment(V(48, 55.1, 0), V(22, 55.1, 0)), False)
sketch11.addConstraint(Sketcher.Constraint("Coincident", 0, 2, 1, 1))
sketch11.addConstraint(Sketcher.Constraint("Coincident", 1, 2, 2, 1))
sketch11.addConstraint(Sketcher.Constraint("Coincident", 2, 2, 3, 1))
sketch11.addConstraint(Sketcher.Constraint("Coincident", 3, 2, 0, 1))
sketch11.addConstraint(Sketcher.Constraint("Coincident", 4, 2, 5, 1))
sketch11.addConstraint(Sketcher.Constraint("Coincident", 5, 2, 6, 1))
sketch11.addConstraint(Sketcher.Constraint("Coincident", 6, 2, 7, 1))
sketch11.addConstraint(Sketcher.Constraint("Coincident", 7, 2, 4, 1))
sketch11.addConstraint(Sketcher.Constraint("Coincident", 8, 2, 9, 1))
sketch11.addConstraint(Sketcher.Constraint("Coincident", 9, 2, 10, 1))
sketch11.addConstraint(Sketcher.Constraint("Coincident", 10, 2, 11, 1))
sketch11.addConstraint(Sketcher.Constraint("Coincident", 11, 2, 8, 1))
sketch11.addConstraint(Sketcher.Constraint("Coincident", 12, 2, 13, 1))
sketch11.addConstraint(Sketcher.Constraint("Coincident", 13, 2, 14, 1))
sketch11.addConstraint(Sketcher.Constraint("Coincident", 14, 2, 15, 1))
sketch11.addConstraint(Sketcher.Constraint("Coincident", 15, 2, 12, 1))
sketch11.addConstraint(Sketcher.Constraint("Vertical", 0))
sketch11.addConstraint(Sketcher.Constraint("Horizontal", 1))
sketch11.addConstraint(Sketcher.Constraint("Vertical", 2))
sketch11.addConstraint(Sketcher.Constraint("Horizontal", 3))
sketch11.addConstraint(Sketcher.Constraint("Vertical", 4))
sketch11.addConstraint(Sketcher.Constraint("Horizontal", 5))
sketch11.addConstraint(Sketcher.Constraint("Vertical", 6))
sketch11.addConstraint(Sketcher.Constraint("Horizontal", 7))
sketch11.addConstraint(Sketcher.Constraint("Vertical", 8))
sketch11.addConstraint(Sketcher.Constraint("Horizontal", 9))
sketch11.addConstraint(Sketcher.Constraint("Vertical", 10))
sketch11.addConstraint(Sketcher.Constraint("Horizontal", 11))
sketch11.addConstraint(Sketcher.Constraint("Vertical", 12))
sketch11.addConstraint(Sketcher.Constraint("Horizontal", 13))
sketch11.addConstraint(Sketcher.Constraint("Vertical", 14))
sketch11.addConstraint(Sketcher.Constraint("Horizontal", 15))
sketch11.addConstraint(Sketcher.Constraint("Symmetric", 9, 2, 12, 2, -2))
sketch11.addConstraint(Sketcher.Constraint("Symmetric", 11, 2, 14, 2, -2))
sketch11.addConstraint(Sketcher.Constraint("Vertical", 3, 2, 4, 2))
sketch11.addConstraint(Sketcher.Constraint("Vertical", 2, 2, 5, 2))
sketch11.addConstraint(Sketcher.Constraint("Equal", 15, 4))
sketch11.addConstraint(Sketcher.Constraint("DistanceX", 9, 1, 9, 2, 26.0))
sketch11.addConstraint(Sketcher.Constraint("DistanceY", 0, 2, 0, 1, 13.0))
sketch11.addConstraint(Sketcher.Constraint("DistanceY", 8, 2, 8, 1, 4.0))
sketch11.addConstraint(Sketcher.Constraint("DistanceX", 1, 1, 1, 2, 124.4))
sketch11.addConstraint(Sketcher.Constraint("DistanceX", 8, 2, -1, 1, 48.0))
sketch11.addConstraint(Sketcher.Constraint("DistanceY", 3, 2, 4, 2, 49.0))
sketch11.addConstraint(Sketcher.Constraint("DistanceX", 0, 2, -1, 1, 62.2))
sketch11.addConstraint(Sketcher.Constraint("DistanceY", 0, 2, -1, 1, 59.1))
sketch11.addConstraint(Sketcher.Constraint("DistanceY", -1, 1, 8, 2, 51.1))
pocket9 = body.newObject("PartDesign::Pocket", "Pocket008")
pocket9.Profile = sketch11
pocket9.Type = "ThroughAll"
pocket9.Reversed = True
doc.recompute()

fillet4 = body.newObject("PartDesign::Fillet", "Fillet003")
fillet4.Base = (pocket9, edges_at(pocket9, [
    (-58.2, -46.1, 2),
    (-58.2, 2.9, 2),
    (-58.2, 28.9, 2),
    (-48, 51.1, 2),
    (-22, 51.1, 2),
    (22, 51.1, 2),
    (48, 51.1, 2),
    (58.2, 28.9, 2),
    (58.2, 2.9, 2),
    (58.2, -46.1, 2),
]))
fillet4.Radius = 3

doc.recompute()
